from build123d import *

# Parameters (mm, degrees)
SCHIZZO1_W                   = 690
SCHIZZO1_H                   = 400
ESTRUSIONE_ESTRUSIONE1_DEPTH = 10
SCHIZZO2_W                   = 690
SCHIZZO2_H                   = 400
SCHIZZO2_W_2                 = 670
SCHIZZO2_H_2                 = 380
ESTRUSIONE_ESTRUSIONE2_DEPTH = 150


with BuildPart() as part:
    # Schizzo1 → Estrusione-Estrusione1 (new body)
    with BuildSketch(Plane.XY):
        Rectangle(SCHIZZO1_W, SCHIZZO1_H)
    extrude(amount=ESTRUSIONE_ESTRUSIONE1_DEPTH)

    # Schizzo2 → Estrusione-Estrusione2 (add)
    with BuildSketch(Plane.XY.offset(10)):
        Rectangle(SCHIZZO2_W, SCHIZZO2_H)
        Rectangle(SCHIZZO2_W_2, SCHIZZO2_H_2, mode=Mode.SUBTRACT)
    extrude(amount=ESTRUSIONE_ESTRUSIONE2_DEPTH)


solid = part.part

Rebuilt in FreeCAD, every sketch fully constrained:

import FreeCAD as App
import Part
import Sketcher

V = App.Vector

doc = App.newDocument("Part")
body = doc.addObject("PartDesign::Body", "Body")

# Sketch on XY plane
sketch1 = body.newObject("Sketcher::SketchObject", "Sketch")
sketch1.AttachmentSupport = (doc.getObject("XY_Plane"), [""])
sketch1.MapMode = "FlatFace"
sketch1.addGeometry([
    Part.LineSegment(V(-345, 200, 0), V(-345, -200, 0)),
    Part.LineSegment(V(-345, -200, 0), V(345, -200, 0)),
    Part.LineSegment(V(345, -200, 0), V(345, 200, 0)),
    Part.LineSegment(V(345, 200, 0), V(-345, 200, 0)),
], False)
sketch1.addConstraint([
    Sketcher.Constraint("Coincident", 0, 2, 1, 1),
    Sketcher.Constraint("Coincident", 1, 2, 2, 1),
    Sketcher.Constraint("Coincident", 2, 2, 3, 1),
    Sketcher.Constraint("Coincident", 3, 2, 0, 1),
    Sketcher.Constraint("Vertical", 0),
    Sketcher.Constraint("Horizontal", 1),
    Sketcher.Constraint("Vertical", 2),
    Sketcher.Constraint("Horizontal", 3),
    Sketcher.Constraint("Symmetric", 0, 2, 2, 2, -1, 1),
    Sketcher.Constraint("DistanceX", 1, 1, 1, 2, 690.0),
    Sketcher.Constraint("DistanceY", 0, 2, 0, 1, 400.0),
])
pad1 = body.newObject("PartDesign::Pad", "Pad")
pad1.Profile = sketch1
pad1.Length = 10

# Sketch on XY plane
sketch2 = body.newObject("Sketcher::SketchObject", "Sketch001")
sketch2.AttachmentSupport = (doc.getObject("XY_Plane"), [""])
sketch2.MapMode = "FlatFace"
sketch2.AttachmentOffset = App.Placement(V(0, 0, 10), App.Rotation())
sketch2.addGeometry([
    Part.LineSegment(V(-345, 200, 0), V(-345, -200, 0)),  # 0
    Part.LineSegment(V(-345, -200, 0), V(345, -200, 0)),  # 1
    Part.LineSegment(V(345, -200, 0), V(345, 200, 0)),  # 2
    Part.LineSegment(V(345, 200, 0), V(-345, 200, 0)),  # 3
    Part.LineSegment(V(335, -190, 0), V(-335, -190, 0)),  # 4
    Part.LineSegment(V(-335, -190, 0), V(-335, 190, 0)),  # 5
    Part.LineSegment(V(-335, 190, 0), V(335, 190, 0)),  # 6
    Part.LineSegment(V(335, 190, 0), V(335, -190, 0)),  # 7
], False)
sketch2.addConstraint([
    Sketcher.Constraint("Coincident", 0, 2, 1, 1),
    Sketcher.Constraint("Coincident", 1, 2, 2, 1),
    Sketcher.Constraint("Coincident", 2, 2, 3, 1),
    Sketcher.Constraint("Coincident", 3, 2, 0, 1),
    Sketcher.Constraint("Coincident", 4, 2, 5, 1),
    Sketcher.Constraint("Coincident", 5, 2, 6, 1),
    Sketcher.Constraint("Coincident", 6, 2, 7, 1),
    Sketcher.Constraint("Coincident", 7, 2, 4, 1),
    Sketcher.Constraint("Vertical", 0),
    Sketcher.Constraint("Horizontal", 1),
    Sketcher.Constraint("Vertical", 2),
    Sketcher.Constraint("Horizontal", 3),
    Sketcher.Constraint("Horizontal", 4),
    Sketcher.Constraint("Vertical", 5),
    Sketcher.Constraint("Horizontal", 6),
    Sketcher.Constraint("Vertical", 7),
    Sketcher.Constraint("Symmetric", 0, 2, 2, 2, -1, 1),
    Sketcher.Constraint("Symmetric", 4, 2, 6, 2, -1, 1),
    Sketcher.Constraint("DistanceX", 1, 1, 1, 2, 690.0),
    Sketcher.Constraint("DistanceX", 4, 2, 4, 1, 670.0),
    Sketcher.Constraint("DistanceY", 0, 2, 0, 1, 400.0),
    Sketcher.Constraint("DistanceY", 5, 1, 5, 2, 380.0),
])
pad2 = body.newObject("PartDesign::Pad", "Pad001")
pad2.Profile = sketch2
pad2.Length = 150

doc.recompute()
